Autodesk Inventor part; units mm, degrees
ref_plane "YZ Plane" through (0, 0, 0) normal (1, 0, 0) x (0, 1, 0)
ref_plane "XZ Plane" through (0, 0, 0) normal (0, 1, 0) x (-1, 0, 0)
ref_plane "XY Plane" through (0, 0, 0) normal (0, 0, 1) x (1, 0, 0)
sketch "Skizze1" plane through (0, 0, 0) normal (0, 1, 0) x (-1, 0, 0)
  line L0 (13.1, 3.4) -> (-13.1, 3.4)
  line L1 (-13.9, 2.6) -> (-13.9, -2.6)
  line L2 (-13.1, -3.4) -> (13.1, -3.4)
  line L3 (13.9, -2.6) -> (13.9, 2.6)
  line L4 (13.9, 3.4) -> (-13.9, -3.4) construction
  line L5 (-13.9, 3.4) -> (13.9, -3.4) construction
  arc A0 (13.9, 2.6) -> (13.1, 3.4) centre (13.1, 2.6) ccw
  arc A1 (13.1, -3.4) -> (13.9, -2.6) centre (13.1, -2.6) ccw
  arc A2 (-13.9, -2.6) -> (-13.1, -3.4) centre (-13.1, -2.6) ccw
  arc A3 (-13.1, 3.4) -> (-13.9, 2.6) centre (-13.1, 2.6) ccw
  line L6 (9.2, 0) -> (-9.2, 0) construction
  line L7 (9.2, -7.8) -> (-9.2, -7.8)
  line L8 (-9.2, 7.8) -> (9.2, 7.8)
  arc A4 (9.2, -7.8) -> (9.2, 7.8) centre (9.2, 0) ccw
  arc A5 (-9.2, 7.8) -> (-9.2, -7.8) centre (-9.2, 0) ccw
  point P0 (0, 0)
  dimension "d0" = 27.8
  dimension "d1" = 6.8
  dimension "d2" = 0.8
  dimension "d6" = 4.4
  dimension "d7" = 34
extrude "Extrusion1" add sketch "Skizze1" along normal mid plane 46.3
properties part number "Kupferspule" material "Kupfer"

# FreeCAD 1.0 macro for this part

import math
import FreeCAD as App
import Part
import Sketcher

V = App.Vector

doc = App.newDocument("Part")
body = doc.addObject("PartDesign::Body", "Body")

sketch1 = body.newObject("Sketcher::SketchObject", "Sketch")
sketch1.AttachmentSupport = (doc.getObject("XZ_Plane"), [""])
sketch1.MapMode = "FlatFace"
sketch1.addGeometry([
    Part.LineSegment(V(9.2, -7.8, 0), V(-9.2, -7.8, 0)),
    Part.ArcOfCircle(Part.Circle(V(-9.2, 0, 0), V(0, 0, 1), 7.8), math.radians(90), math.radians(270)),
    Part.LineSegment(V(-9.2, 7.8, 0), V(9.2, 7.8, 0)),
    Part.ArcOfCircle(Part.Circle(V(9.2, 0, 0), V(0, 0, 1), 7.8), math.radians(-90), math.radians(90)),
    Part.LineSegment(V(13.1, 3.4, 0), V(-13.1, 3.4, 0)),
    Part.ArcOfCircle(Part.Circle(V(-13.1, 2.6, 0), V(0, 0, 1), 0.8), math.radians(90), math.radians(180)),
    Part.LineSegment(V(-13.9, 2.6, 0), V(-13.9, -2.6, 0)),
    Part.ArcOfCircle(Part.Circle(V(-13.1, -2.6, 0), V(0, 0, 1), 0.8), math.radians(180), math.radians(270)),
    Part.LineSegment(V(-13.1, -3.4, 0), V(13.1, -3.4, 0)),
    Part.ArcOfCircle(Part.Circle(V(13.1, -2.6, 0), V(0, 0, 1), 0.8), math.radians(-90), math.radians(0)),
    Part.LineSegment(V(13.9, -2.6, 0), V(13.9, 2.6, 0)),
    Part.ArcOfCircle(Part.Circle(V(13.1, 2.6, 0), V(0, 0, 1), 0.8), math.radians(0), math.radians(90)),
], False)
sketch1.addConstraint([
    Sketcher.Constraint("Tangent", 0, 2, 1, 2),
    Sketcher.Constraint("Tangent", 1, 1, 2, 1),
    Sketcher.Constraint("Tangent", 2, 2, 3, 2),
    Sketcher.Constraint("Tangent", 3, 1, 0, 1),
    Sketcher.Constraint("Tangent", 4, 2, 5, 1),
    Sketcher.Constraint("Tangent", 5, 2, 6, 1),
    Sketcher.Constraint("Tangent", 6, 2, 7, 1),
    Sketcher.Constraint("Tangent", 7, 2, 8, 1),
    Sketcher.Constraint("Tangent", 8, 2, 9, 1),
    Sketcher.Constraint("Tangent", 9, 2, 10, 1),
    Sketcher.Constraint("Tangent", 10, 2, 11, 1),
    Sketcher.Constraint("Tangent", 11, 2, 4, 1),
    Sketcher.Constraint("Horizontal", 0),
    Sketcher.Constraint("Horizontal", 2),
    Sketcher.Constraint("Horizontal", 4),
    Sketcher.Constraint("Vertical", 6),
    Sketcher.Constraint("Horizontal", 8),
    Sketcher.Constraint("Vertical", 10),
    Sketcher.Constraint("Equal", 5, 7),
    Sketcher.Constraint("Equal", 7, 9),
    Sketcher.Constraint("Equal", 9, 11),
    Sketcher.Constraint("Symmetric", 1, 3, 3, 3, -1, 1),
    Sketcher.Constraint("Symmetric", 5, 3, 9, 3, -1, 1),
    Sketcher.Constraint("Radius", 5, 0.8),
    Sketcher.Constraint("Radius", 1, 7.8),
    Sketcher.Constraint("DistanceY", 4, 2, 1, 1, 4.4),
    Sketcher.Constraint("DistanceX", 0, 2, 0, 1, 18.4),
    Sketcher.Constraint("DistanceX", 4, 2, 4, 1, 26.2),
])
pad1 = body.newObject("PartDesign::Pad", "Pad")
pad1.Profile = sketch1
pad1.Length = 46.3
pad1.Midplane = True

doc.recompute()
